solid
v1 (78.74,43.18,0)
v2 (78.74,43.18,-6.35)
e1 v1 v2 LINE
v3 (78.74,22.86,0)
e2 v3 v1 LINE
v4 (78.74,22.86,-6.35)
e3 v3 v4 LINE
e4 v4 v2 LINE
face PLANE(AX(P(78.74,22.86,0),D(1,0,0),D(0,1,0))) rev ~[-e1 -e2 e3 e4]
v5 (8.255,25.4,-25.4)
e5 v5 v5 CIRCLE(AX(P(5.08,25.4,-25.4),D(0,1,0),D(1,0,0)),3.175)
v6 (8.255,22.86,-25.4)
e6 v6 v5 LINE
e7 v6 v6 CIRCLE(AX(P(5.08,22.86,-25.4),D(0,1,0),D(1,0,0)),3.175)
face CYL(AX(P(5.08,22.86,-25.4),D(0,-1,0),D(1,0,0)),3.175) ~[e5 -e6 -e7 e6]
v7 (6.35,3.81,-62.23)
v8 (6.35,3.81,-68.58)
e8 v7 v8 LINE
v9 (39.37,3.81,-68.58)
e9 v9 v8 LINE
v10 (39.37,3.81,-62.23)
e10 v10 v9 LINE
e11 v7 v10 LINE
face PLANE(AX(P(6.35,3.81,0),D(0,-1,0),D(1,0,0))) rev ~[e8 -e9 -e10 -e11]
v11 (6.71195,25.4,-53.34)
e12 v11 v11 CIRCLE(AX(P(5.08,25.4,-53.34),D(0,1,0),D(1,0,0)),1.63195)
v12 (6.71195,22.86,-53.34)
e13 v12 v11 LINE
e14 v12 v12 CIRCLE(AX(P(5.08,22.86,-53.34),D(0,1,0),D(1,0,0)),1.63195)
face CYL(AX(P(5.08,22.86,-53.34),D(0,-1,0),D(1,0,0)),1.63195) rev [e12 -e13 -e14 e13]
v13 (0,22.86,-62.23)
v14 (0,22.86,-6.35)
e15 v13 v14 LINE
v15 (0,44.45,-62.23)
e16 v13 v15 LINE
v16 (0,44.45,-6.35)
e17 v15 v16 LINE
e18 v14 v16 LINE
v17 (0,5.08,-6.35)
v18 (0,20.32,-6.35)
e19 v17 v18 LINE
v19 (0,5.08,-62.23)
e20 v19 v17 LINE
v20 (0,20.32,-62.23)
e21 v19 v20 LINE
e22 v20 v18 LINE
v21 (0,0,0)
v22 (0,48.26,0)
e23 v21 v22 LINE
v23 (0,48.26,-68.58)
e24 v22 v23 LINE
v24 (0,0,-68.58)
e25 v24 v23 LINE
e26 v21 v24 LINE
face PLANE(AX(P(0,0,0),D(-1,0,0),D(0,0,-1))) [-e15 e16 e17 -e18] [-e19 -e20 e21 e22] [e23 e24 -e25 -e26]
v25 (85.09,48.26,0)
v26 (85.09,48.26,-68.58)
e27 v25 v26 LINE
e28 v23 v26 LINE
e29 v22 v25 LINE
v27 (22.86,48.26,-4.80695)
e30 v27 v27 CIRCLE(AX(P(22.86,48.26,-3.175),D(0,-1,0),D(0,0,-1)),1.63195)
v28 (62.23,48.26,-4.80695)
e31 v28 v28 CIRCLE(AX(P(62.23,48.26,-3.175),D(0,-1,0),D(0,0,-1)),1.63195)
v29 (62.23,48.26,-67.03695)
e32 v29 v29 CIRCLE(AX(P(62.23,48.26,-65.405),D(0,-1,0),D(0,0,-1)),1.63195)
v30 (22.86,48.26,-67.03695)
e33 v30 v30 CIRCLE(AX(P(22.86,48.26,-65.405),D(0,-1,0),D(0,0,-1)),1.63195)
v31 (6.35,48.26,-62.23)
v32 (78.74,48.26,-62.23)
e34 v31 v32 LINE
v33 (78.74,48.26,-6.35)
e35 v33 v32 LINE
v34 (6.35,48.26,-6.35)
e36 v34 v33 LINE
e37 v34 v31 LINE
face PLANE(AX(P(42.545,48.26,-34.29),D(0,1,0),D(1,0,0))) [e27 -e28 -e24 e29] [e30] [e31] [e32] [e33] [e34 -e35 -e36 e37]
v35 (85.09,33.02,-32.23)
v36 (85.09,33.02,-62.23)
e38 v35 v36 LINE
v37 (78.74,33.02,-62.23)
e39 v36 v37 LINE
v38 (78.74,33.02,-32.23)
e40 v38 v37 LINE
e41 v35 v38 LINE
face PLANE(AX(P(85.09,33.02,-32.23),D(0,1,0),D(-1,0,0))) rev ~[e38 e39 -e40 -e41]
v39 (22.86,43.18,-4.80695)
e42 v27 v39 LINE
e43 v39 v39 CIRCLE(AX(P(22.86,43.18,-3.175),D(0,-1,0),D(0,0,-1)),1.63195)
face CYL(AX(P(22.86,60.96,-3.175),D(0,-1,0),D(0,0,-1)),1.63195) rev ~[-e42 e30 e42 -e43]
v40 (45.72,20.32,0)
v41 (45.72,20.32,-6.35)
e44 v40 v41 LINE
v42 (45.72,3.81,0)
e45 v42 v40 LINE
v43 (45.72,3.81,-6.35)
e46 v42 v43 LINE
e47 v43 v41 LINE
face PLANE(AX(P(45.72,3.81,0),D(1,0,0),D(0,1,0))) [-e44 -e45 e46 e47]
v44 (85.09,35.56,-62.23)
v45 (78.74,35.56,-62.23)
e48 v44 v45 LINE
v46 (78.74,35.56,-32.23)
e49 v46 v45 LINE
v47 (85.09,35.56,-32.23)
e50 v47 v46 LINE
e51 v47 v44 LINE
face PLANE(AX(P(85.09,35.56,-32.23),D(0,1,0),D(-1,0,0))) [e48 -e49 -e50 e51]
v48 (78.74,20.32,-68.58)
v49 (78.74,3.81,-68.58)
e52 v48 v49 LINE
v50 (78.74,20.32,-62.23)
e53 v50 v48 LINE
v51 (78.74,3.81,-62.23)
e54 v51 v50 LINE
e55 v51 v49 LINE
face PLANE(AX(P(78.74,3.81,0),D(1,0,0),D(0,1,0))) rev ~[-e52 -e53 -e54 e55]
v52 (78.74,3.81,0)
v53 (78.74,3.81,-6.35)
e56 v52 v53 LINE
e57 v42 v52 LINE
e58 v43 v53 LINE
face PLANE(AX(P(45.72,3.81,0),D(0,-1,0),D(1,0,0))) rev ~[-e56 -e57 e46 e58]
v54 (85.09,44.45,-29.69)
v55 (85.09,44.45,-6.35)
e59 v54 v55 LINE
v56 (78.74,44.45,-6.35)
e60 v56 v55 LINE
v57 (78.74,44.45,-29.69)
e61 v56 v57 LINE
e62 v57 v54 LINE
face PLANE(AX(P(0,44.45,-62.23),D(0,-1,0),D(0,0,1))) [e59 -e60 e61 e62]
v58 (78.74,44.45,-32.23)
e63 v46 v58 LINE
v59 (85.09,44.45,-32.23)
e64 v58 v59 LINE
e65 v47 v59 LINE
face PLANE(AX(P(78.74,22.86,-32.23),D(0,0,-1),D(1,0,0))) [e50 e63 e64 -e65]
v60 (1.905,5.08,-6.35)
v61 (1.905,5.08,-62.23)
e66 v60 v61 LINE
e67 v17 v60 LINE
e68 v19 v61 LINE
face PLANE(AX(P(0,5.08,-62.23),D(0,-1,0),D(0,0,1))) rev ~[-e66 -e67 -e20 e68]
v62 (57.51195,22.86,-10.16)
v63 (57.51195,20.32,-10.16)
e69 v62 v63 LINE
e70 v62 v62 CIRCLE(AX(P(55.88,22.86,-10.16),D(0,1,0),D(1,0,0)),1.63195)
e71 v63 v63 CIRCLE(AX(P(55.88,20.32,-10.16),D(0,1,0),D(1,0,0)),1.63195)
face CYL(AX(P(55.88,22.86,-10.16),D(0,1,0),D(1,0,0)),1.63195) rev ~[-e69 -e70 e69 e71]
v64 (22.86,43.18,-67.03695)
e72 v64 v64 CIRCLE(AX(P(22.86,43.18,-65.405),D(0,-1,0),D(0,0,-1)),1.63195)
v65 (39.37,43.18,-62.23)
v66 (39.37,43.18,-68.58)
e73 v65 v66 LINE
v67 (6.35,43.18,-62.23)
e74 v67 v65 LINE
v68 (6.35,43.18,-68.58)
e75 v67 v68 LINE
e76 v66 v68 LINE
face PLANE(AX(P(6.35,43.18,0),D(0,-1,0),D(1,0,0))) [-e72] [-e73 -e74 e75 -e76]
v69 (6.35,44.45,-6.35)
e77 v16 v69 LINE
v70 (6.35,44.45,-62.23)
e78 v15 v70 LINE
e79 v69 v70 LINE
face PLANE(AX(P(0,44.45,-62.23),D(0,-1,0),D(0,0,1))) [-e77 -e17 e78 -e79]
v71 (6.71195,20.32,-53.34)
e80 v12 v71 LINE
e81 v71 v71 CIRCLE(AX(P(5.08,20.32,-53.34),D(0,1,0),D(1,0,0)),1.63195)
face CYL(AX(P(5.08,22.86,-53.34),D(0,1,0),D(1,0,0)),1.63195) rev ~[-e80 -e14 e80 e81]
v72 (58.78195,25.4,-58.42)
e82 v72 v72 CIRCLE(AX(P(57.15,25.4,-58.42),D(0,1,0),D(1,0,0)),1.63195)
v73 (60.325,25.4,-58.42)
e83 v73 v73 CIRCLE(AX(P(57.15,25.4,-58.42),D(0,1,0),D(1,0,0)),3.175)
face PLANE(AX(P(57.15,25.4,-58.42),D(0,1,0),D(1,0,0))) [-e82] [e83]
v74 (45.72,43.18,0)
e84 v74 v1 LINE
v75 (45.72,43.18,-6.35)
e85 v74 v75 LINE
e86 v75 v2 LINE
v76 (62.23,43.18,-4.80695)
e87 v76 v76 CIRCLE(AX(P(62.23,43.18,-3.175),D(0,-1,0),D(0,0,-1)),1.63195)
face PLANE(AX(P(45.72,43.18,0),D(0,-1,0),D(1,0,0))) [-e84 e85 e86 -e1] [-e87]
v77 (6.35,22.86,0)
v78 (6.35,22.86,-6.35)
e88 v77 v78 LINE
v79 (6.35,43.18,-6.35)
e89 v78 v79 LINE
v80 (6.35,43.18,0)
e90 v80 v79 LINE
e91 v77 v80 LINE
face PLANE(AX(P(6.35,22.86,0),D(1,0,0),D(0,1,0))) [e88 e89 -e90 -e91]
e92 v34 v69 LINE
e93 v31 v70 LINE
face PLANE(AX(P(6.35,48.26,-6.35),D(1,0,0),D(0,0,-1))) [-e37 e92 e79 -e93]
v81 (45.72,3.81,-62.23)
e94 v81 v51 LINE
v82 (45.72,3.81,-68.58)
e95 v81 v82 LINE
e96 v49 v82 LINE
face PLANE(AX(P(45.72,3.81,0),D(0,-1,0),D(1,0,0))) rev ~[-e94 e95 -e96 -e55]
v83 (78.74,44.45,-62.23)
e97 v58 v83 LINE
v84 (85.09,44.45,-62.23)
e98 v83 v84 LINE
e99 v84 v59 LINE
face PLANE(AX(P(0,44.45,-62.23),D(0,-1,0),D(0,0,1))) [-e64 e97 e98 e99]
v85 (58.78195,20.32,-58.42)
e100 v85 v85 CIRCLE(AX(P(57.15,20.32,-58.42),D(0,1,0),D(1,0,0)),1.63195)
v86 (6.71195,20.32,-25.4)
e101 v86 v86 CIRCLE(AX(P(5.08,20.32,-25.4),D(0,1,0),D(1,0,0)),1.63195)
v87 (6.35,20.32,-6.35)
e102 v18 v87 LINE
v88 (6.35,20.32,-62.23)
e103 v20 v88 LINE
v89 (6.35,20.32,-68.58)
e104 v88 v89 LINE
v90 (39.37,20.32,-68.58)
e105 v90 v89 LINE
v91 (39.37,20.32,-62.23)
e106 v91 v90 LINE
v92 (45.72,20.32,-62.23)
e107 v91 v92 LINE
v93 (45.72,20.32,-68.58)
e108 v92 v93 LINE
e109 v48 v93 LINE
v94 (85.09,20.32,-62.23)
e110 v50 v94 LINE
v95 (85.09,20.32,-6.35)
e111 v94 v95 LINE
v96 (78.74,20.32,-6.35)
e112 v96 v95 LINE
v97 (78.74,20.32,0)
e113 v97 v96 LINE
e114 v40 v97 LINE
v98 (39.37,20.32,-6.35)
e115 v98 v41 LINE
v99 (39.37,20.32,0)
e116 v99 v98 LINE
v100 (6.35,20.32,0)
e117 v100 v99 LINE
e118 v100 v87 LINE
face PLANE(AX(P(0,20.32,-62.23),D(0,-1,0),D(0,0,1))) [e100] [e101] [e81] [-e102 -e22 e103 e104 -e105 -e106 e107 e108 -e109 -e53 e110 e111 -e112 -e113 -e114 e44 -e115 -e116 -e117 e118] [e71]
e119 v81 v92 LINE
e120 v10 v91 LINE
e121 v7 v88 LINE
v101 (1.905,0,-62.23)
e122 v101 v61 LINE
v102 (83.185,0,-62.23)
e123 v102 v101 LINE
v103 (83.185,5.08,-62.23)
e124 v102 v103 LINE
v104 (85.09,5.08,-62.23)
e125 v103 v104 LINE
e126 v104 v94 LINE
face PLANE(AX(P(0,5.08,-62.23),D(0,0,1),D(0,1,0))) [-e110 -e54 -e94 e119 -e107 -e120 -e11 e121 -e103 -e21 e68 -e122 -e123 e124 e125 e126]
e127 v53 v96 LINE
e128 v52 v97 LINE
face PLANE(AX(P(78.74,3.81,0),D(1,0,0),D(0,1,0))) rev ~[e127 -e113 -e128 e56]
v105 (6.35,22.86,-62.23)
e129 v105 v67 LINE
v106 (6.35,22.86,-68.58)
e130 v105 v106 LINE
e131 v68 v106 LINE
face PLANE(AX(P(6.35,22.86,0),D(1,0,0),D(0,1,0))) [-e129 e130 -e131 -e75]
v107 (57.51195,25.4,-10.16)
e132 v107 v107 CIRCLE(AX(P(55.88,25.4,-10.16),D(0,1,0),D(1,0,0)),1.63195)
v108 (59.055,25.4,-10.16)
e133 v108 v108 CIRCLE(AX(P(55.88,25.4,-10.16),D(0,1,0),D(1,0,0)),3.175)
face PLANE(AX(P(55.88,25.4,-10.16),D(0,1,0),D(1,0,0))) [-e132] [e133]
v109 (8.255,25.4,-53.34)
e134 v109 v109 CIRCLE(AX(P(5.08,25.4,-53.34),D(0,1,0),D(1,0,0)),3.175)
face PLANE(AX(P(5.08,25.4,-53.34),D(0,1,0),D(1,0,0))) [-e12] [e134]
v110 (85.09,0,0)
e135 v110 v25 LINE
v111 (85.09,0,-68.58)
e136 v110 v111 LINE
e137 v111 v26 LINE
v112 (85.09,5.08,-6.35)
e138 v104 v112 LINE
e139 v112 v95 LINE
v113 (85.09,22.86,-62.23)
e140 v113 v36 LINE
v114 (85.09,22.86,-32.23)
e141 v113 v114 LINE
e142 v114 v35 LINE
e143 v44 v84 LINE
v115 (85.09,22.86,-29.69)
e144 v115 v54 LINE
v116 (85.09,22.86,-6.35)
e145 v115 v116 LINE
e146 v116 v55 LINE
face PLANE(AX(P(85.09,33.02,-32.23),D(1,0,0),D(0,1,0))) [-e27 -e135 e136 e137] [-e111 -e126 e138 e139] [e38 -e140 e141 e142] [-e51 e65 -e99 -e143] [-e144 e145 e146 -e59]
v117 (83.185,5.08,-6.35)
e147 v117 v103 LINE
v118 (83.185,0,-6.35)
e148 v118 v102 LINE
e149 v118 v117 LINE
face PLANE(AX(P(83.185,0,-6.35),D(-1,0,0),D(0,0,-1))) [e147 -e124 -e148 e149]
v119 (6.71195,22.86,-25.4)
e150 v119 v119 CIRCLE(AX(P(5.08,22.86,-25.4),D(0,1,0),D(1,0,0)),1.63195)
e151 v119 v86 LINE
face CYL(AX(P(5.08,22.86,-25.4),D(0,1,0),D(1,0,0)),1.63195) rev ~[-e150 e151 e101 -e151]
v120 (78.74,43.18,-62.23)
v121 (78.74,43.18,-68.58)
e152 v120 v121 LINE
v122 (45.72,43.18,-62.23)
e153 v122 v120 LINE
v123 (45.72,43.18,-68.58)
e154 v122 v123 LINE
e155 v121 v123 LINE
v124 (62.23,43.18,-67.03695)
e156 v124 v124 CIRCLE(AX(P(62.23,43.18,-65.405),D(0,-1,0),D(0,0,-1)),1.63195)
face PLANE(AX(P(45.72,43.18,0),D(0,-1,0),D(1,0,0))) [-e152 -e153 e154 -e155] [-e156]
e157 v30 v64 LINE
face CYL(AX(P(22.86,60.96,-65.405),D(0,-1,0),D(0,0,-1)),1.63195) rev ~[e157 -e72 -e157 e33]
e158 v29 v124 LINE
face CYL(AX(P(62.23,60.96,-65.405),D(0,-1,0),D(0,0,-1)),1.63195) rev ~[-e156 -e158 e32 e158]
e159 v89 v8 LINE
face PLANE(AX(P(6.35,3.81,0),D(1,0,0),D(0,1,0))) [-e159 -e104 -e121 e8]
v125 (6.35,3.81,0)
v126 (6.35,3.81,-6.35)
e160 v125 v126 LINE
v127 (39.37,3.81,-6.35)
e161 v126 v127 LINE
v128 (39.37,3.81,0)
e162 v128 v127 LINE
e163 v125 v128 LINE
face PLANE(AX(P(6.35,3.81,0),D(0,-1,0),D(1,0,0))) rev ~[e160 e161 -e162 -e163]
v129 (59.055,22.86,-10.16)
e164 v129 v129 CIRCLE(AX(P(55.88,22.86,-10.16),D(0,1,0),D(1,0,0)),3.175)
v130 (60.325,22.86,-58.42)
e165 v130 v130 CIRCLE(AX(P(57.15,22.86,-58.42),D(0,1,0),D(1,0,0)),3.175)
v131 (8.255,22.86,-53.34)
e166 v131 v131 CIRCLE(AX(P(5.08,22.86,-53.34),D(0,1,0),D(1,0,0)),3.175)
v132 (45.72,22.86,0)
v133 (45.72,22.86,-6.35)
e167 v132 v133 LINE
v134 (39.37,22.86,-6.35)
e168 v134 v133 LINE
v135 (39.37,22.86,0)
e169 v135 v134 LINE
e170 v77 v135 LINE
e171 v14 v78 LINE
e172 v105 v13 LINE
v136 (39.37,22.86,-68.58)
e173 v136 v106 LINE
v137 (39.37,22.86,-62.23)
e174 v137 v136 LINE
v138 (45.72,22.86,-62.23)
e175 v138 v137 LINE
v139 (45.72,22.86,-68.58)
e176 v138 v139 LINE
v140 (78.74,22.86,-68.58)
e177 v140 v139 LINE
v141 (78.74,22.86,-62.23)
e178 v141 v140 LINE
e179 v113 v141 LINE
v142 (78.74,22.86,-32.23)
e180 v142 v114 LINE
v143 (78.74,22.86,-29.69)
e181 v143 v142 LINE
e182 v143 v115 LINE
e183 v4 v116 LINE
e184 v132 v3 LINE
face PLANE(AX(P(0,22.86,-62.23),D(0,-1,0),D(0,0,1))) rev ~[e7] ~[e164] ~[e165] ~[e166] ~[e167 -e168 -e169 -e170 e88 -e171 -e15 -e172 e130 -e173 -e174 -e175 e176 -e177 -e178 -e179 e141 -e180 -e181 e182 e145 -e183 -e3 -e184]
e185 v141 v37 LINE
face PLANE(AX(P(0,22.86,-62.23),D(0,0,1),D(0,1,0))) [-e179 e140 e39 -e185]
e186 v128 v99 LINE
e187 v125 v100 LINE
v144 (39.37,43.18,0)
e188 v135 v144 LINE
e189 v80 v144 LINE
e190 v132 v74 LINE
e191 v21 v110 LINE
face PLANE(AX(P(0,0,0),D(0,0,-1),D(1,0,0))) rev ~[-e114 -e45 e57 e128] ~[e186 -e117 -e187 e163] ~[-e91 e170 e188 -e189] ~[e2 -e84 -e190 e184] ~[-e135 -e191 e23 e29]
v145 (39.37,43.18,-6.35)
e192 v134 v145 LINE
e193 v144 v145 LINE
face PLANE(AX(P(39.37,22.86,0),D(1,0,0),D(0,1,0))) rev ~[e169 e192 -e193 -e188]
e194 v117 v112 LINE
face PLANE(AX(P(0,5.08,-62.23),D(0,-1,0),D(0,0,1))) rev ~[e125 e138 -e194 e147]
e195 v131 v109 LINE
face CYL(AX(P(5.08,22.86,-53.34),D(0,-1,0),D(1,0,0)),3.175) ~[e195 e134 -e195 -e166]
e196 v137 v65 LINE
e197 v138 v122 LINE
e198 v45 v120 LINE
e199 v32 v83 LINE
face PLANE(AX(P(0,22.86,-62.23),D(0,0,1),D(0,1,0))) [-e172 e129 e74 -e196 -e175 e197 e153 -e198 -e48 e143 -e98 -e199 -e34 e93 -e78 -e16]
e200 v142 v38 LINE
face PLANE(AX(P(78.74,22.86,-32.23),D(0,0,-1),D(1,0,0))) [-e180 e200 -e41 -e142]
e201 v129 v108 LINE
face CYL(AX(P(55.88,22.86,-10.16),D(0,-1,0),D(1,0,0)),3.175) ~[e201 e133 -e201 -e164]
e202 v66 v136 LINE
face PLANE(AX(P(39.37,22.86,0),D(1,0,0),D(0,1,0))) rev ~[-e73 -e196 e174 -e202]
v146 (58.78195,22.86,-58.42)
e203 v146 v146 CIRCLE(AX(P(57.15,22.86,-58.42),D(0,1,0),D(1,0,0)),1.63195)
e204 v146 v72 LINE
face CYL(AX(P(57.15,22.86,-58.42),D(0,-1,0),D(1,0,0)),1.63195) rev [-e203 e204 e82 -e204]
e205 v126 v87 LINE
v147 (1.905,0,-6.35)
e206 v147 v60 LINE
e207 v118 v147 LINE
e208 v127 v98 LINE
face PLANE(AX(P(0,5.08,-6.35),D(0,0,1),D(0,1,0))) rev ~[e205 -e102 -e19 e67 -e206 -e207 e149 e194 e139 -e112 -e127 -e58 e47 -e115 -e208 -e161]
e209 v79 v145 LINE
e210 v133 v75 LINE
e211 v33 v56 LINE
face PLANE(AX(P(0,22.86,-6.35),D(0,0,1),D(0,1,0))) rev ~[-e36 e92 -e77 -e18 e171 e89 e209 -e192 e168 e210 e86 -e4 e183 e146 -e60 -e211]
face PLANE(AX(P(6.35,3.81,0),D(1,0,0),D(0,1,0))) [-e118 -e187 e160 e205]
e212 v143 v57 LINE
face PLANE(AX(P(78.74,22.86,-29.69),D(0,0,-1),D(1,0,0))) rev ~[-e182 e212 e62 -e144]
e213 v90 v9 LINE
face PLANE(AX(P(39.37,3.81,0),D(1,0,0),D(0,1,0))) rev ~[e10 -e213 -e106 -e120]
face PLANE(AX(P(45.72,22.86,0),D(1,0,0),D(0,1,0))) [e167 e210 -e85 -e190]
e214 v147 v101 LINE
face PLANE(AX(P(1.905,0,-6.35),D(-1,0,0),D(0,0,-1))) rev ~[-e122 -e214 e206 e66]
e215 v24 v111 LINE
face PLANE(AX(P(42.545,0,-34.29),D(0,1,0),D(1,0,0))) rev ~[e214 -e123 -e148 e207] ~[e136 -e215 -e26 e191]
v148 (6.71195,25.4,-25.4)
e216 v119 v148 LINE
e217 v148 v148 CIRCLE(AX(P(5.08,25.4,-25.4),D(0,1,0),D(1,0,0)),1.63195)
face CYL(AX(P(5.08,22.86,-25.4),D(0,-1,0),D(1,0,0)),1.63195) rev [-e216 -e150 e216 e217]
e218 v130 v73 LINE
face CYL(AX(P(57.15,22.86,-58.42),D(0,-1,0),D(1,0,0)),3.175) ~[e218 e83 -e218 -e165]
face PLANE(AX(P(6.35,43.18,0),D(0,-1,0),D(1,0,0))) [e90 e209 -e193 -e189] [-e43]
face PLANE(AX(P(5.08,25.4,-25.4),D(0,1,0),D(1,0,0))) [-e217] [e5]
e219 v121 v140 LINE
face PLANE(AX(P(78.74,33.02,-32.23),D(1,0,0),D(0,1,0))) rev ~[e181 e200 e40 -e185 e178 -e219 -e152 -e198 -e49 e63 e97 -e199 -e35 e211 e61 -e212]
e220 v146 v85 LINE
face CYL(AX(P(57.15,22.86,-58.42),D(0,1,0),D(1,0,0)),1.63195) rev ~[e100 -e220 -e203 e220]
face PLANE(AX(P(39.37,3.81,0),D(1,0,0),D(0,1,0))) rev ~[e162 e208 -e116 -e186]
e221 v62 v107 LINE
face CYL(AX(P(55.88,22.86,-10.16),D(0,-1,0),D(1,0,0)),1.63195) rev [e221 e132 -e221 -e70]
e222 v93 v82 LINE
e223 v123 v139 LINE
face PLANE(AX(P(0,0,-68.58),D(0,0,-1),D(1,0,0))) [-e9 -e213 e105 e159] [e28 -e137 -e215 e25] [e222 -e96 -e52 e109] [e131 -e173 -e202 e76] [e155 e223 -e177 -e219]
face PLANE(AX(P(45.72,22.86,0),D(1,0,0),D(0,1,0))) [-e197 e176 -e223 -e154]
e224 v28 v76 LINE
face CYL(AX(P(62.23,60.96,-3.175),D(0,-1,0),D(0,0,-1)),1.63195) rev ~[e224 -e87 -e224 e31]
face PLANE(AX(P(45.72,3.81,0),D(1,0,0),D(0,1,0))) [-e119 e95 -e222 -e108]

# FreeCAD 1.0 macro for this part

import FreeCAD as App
import Part
import Sketcher
Q = App.Units.Quantity

doc = App.newDocument("Part")
body = doc.addObject("PartDesign::Body", "Body")

# Sketch on XZ plane
sketch1 = body.newObject("Sketcher::SketchObject", "Sketch")
sketch1.AttachmentSupport = (doc.getObject("XZ_Plane"), [""])
sketch1.MapMode = "FlatFace"
sketch1.addGeometry(Part.LineSegment(App.Vector(0, -69, 0), App.Vector(0, 0, 0)), False)
sketch1.addGeometry(Part.LineSegment(App.Vector(0, 0, 0), App.Vector(85, 0, 0)), False)
sketch1.addGeometry(Part.LineSegment(App.Vector(85, 0, 0), App.Vector(85, -69, 0)), False)
sketch1.addGeometry(Part.LineSegment(App.Vector(85, -69, 0), App.Vector(0, -69, 0)), False)
sketch1.addConstraint(Sketcher.Constraint("Coincident", 0, 2, 1, 1))
sketch1.addConstraint(Sketcher.Constraint("Coincident", 1, 2, 2, 1))
sketch1.addConstraint(Sketcher.Constraint("Coincident", 2, 2, 3, 1))
sketch1.addConstraint(Sketcher.Constraint("Coincident", 3, 2, 0, 1))
sketch1.addConstraint(Sketcher.Constraint("Vertical", 0))
sketch1.addConstraint(Sketcher.Constraint("Horizontal", 1))
sketch1.addConstraint(Sketcher.Constraint("Vertical", 2))
sketch1.addConstraint(Sketcher.Constraint("Horizontal", 3))
sketch1.addConstraint(Sketcher.Constraint("Coincident", 0, 2, -1, 1))
sketch1.addConstraint(Sketcher.Constraint("DistanceY", 0, 1, 0, 2, Q("2.7 in")))
sketch1.addConstraint(Sketcher.Constraint("DistanceX", 1, 1, 1, 2, Q("3.35 in")))
pad1 = body.newObject("PartDesign::Pad", "Pad")
pad1.Profile = sketch1
pad1.Length = Q("1.9 in")
pad1.Reversed = True

# Sketch on XZ plane
sketch2 = body.newObject("Sketcher::SketchObject", "Sketch001")
sketch2.AttachmentSupport = (doc.getObject("XZ_Plane"), [""])
sketch2.MapMode = "FlatFace"
sketch2.AttachmentOffset = App.Placement(App.Vector(0, 0, -1.9 * 25.4), App.Rotation())
sketch2.addGeometry(Part.LineSegment(App.Vector(6, -62, 0), App.Vector(6, -6, 0)), False)
sketch2.addGeometry(Part.LineSegment(App.Vector(6, -6, 0), App.Vector(79, -6, 0)), False)
sketch2.addGeometry(Part.LineSegment(App.Vector(79, -6, 0), App.Vector(79, -62, 0)), False)
sketch2.addGeometry(Part.LineSegment(App.Vector(79, -62, 0), App.Vector(6, -62, 0)), False)
sketch2.addConstraint(Sketcher.Constraint("Coincident", 0, 2, 1, 1))
sketch2.addConstraint(Sketcher.Constraint("Coincident", 1, 2, 2, 1))
sketch2.addConstraint(Sketcher.Constraint("Coincident", 2, 2, 3, 1))
sketch2.addConstraint(Sketcher.Constraint("Coincident", 3, 2, 0, 1))
sketch2.addConstraint(Sketcher.Constraint("Vertical", 0))
sketch2.addConstraint(Sketcher.Constraint("Horizontal", 1))
sketch2.addConstraint(Sketcher.Constraint("Vertical", 2))
sketch2.addConstraint(Sketcher.Constraint("Horizontal", 3))
sketch2.addConstraint(Sketcher.Constraint("DistanceY", 0, 1, 0, 2, Q("2.2 in")))
sketch2.addConstraint(Sketcher.Constraint("DistanceX", 1, 1, 1, 2, Q("2.85 in")))
sketch2.addConstraint(Sketcher.Constraint("DistanceX", -1, 1, 1, 2, Q("3.1 in")))
sketch2.addConstraint(Sketcher.Constraint("DistanceY", 0, 2, -1, 1, Q("0.25 in")))
pocket1 = body.newObject("PartDesign::Pocket", "Pocket")
pocket1.Profile = sketch2
pocket1.Length = Q("1 in")
pocket1.Reversed = True

# Sketch on YZ plane
sketch3 = body.newObject("Sketcher::SketchObject", "Sketch002")
sketch3.AttachmentSupport = (doc.getObject("YZ_Plane"), [""])
sketch3.MapMode = "FlatFace"
sketch3.addGeometry(Part.LineSegment(App.Vector(44, -62, 0), App.Vector(23, -62, 0)), False)
sketch3.addGeometry(Part.LineSegment(App.Vector(23, -62, 0), App.Vector(23, -6, 0)), False)
sketch3.addGeometry(Part.LineSegment(App.Vector(23, -6, 0), App.Vector(44, -6, 0)), False)
sketch3.addGeometry(Part.LineSegment(App.Vector(44, -6, 0), App.Vector(44, -62, 0)), False)
sketch3.addGeometry(Part.LineSegment(App.Vector(20, -62, 0), App.Vector(5, -62, 0)), False)
sketch3.addGeometry(Part.LineSegment(App.Vector(5, -62, 0), App.Vector(5, -6, 0)), False)
sketch3.addGeometry(Part.LineSegment(App.Vector(5, -6, 0), App.Vector(20, -6, 0)), False)
sketch3.addGeometry(Part.LineSegment(App.Vector(20, -6, 0), App.Vector(20, -62, 0)), False)
sketch3.addConstraint(Sketcher.Constraint("Coincident", 0, 2, 1, 1))
sketch3.addConstraint(Sketcher.Constraint("Coincident", 1, 2, 2, 1))
sketch3.addConstraint(Sketcher.Constraint("Coincident", 2, 2, 3, 1))
sketch3.addConstraint(Sketcher.Constraint("Coincident", 3, 2, 0, 1))
sketch3.addConstraint(Sketcher.Constraint("Coincident", 4, 2, 5, 1))
sketch3.addConstraint(Sketcher.Constraint("Coincident", 5, 2, 6, 1))
sketch3.addConstraint(Sketcher.Constraint("Coincident", 6, 2, 7, 1))
sketch3.addConstraint(Sketcher.Constraint("Coincident", 7, 2, 4, 1))
sketch3.addConstraint(Sketcher.Constraint("Horizontal", 0))
sketch3.addConstraint(Sketcher.Constraint("Vertical", 1))
sketch3.addConstraint(Sketcher.Constraint("Horizontal", 2))
sketch3.addConstraint(Sketcher.Constraint("Vertical", 3))
sketch3.addConstraint(Sketcher.Constraint("Horizontal", 4))
sketch3.addConstraint(Sketcher.Constraint("Vertical", 5))
sketch3.addConstraint(Sketcher.Constraint("Horizontal", 6))
sketch3.addConstraint(Sketcher.Constraint("Vertical", 7))
sketch3.addConstraint(Sketcher.Constraint("Horizontal", 3, 2, 4, 2))
sketch3.addConstraint(Sketcher.Constraint("Horizontal", 2, 2, 5, 2))
sketch3.addConstraint(Sketcher.Constraint("DistanceX", 4, 2, 4, 1, Q("0.6 in")))
sketch3.addConstraint(Sketcher.Constraint("DistanceY", 1, 1, 1, 2, Q("2.2 in")))
sketch3.addConstraint(Sketcher.Constraint("DistanceX", 0, 2, 0, 1, Q("0.85 in")))
sketch3.addConstraint(Sketcher.Constraint("DistanceX", -1, 1, 0, 2, Q("0.9 in")))
sketch3.addConstraint(Sketcher.Constraint("DistanceX", -1, 1, 4, 2, Q("0.2 in")))
sketch3.addConstraint(Sketcher.Constraint("DistanceY", 0, 2, -1, 1, Q("2.45 in")))
pocket2 = body.newObject("PartDesign::Pocket", "Pocket001")
pocket2.Profile = sketch3
pocket2.Type = "ThroughAll"
pocket2.Reversed = True

# Sketch on XZ plane
sketch4 = body.newObject("Sketcher::SketchObject", "Sketch003")
sketch4.AttachmentSupport = (doc.getObject("XZ_Plane"), [""])
sketch4.MapMode = "FlatFace"
sketch4.addGeometry(Part.LineSegment(App.Vector(83, -62, 0), App.Vector(83, -6, 0)), False)
sketch4.addGeometry(Part.LineSegment(App.Vector(83, -6, 0), App.Vector(2, -6, 0)), False)
sketch4.addGeometry(Part.LineSegment(App.Vector(2, -6, 0), App.Vector(2, -62, 0)), False)
sketch4.addGeometry(Part.LineSegment(App.Vector(2, -62, 0), App.Vector(83, -62, 0)), False)
sketch4.addConstraint(Sketcher.Constraint("Coincident", 0, 2, 1, 1))
sketch4.addConstraint(Sketcher.Constraint("Coincident", 1, 2, 2, 1))
sketch4.addConstraint(Sketcher.Constraint("Coincident", 2, 2, 3, 1))
sketch4.addConstraint(Sketcher.Constraint("Coincident", 3, 2, 0, 1))
sketch4.addConstraint(Sketcher.Constraint("Vertical", 0))
sketch4.addConstraint(Sketcher.Constraint("Horizontal", 1))
sketch4.addConstraint(Sketcher.Constraint("Vertical", 2))
sketch4.addConstraint(Sketcher.Constraint("Horizontal", 3))
sketch4.addConstraint(Sketcher.Constraint("DistanceX", 1, 2, 1, 1, Q("3.2 in")))
sketch4.addConstraint(Sketcher.Constraint("DistanceY", 0, 1, 0, 2, Q("2.2 in")))
sketch4.addConstraint(Sketcher.Constraint("DistanceY", 0, 2, -1, 1, Q("0.25 in")))
sketch4.addConstraint(Sketcher.Constraint("DistanceX", -1, 1, 0, 2, Q("3.275 in")))
pocket3 = body.newObject("PartDesign::Pocket", "Pocket002")
pocket3.Profile = sketch4
pocket3.Length = Q("0.8 in")

# Sketch on XZ plane
sketch5 = body.newObject("Sketcher::SketchObject", "Sketch004")
sketch5.AttachmentSupport = (doc.getObject("XZ_Plane"), [""])
sketch5.MapMode = "FlatFace"
sketch5.AttachmentOffset = App.Placement(App.Vector(0, 0, -1.9 * 25.4), App.Rotation())
sketch5.addGeometry(Part.Circle(App.Vector(22.9, -3.2, 0), App.Vector(0, 0, 1), 1.6), False)
sketch5.addGeometry(Part.Circle(App.Vector(22.9, -65.4, 0), App.Vector(0, 0, 1), 1.6), False)
sketch5.addGeometry(Part.Circle(App.Vector(62.2, -65.4, 0), App.Vector(0, 0, 1), 1.6), False)
sketch5.addGeometry(Part.Circle(App.Vector(62.2, -3.2, 0), App.Vector(0, 0, 1), 1.6), False)
sketch5.addConstraint(Sketcher.Constraint("Equal", 0, 1))
sketch5.addConstraint(Sketcher.Constraint("Equal", 1, 2))
sketch5.addConstraint(Sketcher.Constraint("Equal", 2, 3))
sketch5.addConstraint(Sketcher.Constraint("Horizontal", 1, 3, 2, 3))
sketch5.addConstraint(Sketcher.Constraint("Horizontal", 0, 3, 3, 3))
sketch5.addConstraint(Sketcher.Constraint("Vertical", 0, 3, 1, 3))
sketch5.addConstraint(Sketcher.Constraint("Vertical", 2, 3, 3, 3))
sketch5.addConstraint(Sketcher.Constraint("Diameter", 0, Q("0.1285 in")))
sketch5.addConstraint(Sketcher.Constraint("DistanceX", -1, 1, 0, 3, Q("0.9 in")))
sketch5.addConstraint(Sketcher.Constraint("DistanceX", -1, 1, 2, 3, Q("2.45 in")))
sketch5.addConstraint(Sketcher.Constraint("DistanceY", 1, 3, 0, 3, Q("2.45 in")))
sketch5.addConstraint(Sketcher.Constraint("DistanceY", 0, 3, -1, 1, Q("0.125 in")))
doc.recompute()
hole = body.newObject("PartDesign::Hole", "Hole")
hole.Profile = sketch5
hole.ThreadType = "None"
hole.Diameter = Q("0.1285 in")
hole.DepthType = "Dimension"
hole.Depth = Q("0.5 in")
hole.DrillPoint = "Angled"
hole.DrillPointAngle = 118
hole.Reversed = True

# Sketch on XY plane
sketch6 = body.newObject("Sketcher::SketchObject", "Sketch005")
sketch6.AttachmentSupport = (doc.getObject("XY_Plane"), [""])
sketch6.MapMode = "FlatFace"
sketch6.addGeometry(Part.LineSegment(App.Vector(6, 20, 0), App.Vector(6, 4, 0)), False)
sketch6.addGeometry(Part.LineSegment(App.Vector(6, 4, 0), App.Vector(39, 4, 0)), False)
sketch6.addGeometry(Part.LineSegment(App.Vector(39, 4, 0), App.Vector(39, 20, 0)), False)
sketch6.addGeometry(Part.LineSegment(App.Vector(39, 20, 0), App.Vector(6, 20, 0)), False)
sketch6.addGeometry(Part.LineSegment(App.Vector(6, 43, 0), App.Vector(6, 23, 0)), False)
sketch6.addGeometry(Part.LineSegment(App.Vector(6, 23, 0), App.Vector(39, 23, 0)), False)
sketch6.addGeometry(Part.LineSegment(App.Vector(39, 23, 0), App.Vector(39, 43, 0)), False)
sketch6.addGeometry(Part.LineSegment(App.Vector(39, 43, 0), App.Vector(6, 43, 0)), False)
sketch6.addGeometry(Part.LineSegment(App.Vector(46, 43, 0), App.Vector(46, 23, 0)), False)
sketch6.addGeometry(Part.LineSegment(App.Vector(46, 23, 0), App.Vector(79, 23, 0)), False)
sketch6.addGeometry(Part.LineSegment(App.Vector(79, 23, 0), App.Vector(79, 43, 0)), False)
sketch6.addGeometry(Part.LineSegment(App.Vector(79, 43, 0), App.Vector(46, 43, 0)), False)
sketch6.addGeometry(Part.LineSegment(App.Vector(46, 20, 0), App.Vector(46, 4, 0)), False)
sketch6.addGeometry(Part.LineSegment(App.Vector(46, 4, 0), App.Vector(79, 4, 0)), False)
sketch6.addGeometry(Part.LineSegment(App.Vector(79, 4, 0), App.Vector(79, 20, 0)), False)
sketch6.addGeometry(Part.LineSegment(App.Vector(79, 20, 0), App.Vector(46, 20, 0)), False)
sketch6.addConstraint(Sketcher.Constraint("Coincident", 0, 2, 1, 1))
sketch6.addConstraint(Sketcher.Constraint("Coincident", 1, 2, 2, 1))
sketch6.addConstraint(Sketcher.Constraint("Coincident", 2, 2, 3, 1))
sketch6.addConstraint(Sketcher.Constraint("Coincident", 3, 2, 0, 1))
sketch6.addConstraint(Sketcher.Constraint("Coincident", 4, 2, 5, 1))
sketch6.addConstraint(Sketcher.Constraint("Coincident", 5, 2, 6, 1))
sketch6.addConstraint(Sketcher.Constraint("Coincident", 6, 2, 7, 1))
sketch6.addConstraint(Sketcher.Constraint("Coincident", 7, 2, 4, 1))
sketch6.addConstraint(Sketcher.Constraint("Coincident", 8, 2, 9, 1))
sketch6.addConstraint(Sketcher.Constraint("Coincident", 9, 2, 10, 1))
sketch6.addConstraint(Sketcher.Constraint("Coincident", 10, 2, 11, 1))
sketch6.addConstraint(Sketcher.Constraint("Coincident", 11, 2, 8, 1))
sketch6.addConstraint(Sketcher.Constraint("Coincident", 12, 2, 13, 1))
sketch6.addConstraint(Sketcher.Constraint("Coincident", 13, 2, 14, 1))
sketch6.addConstraint(Sketcher.Constraint("Coincident", 14, 2, 15, 1))
sketch6.addConstraint(Sketcher.Constraint("Coincident", 15, 2, 12, 1))
sketch6.addConstraint(Sketcher.Constraint("Vertical", 0))
sketch6.addConstraint(Sketcher.Constraint("Horizontal", 1))
sketch6.addConstraint(Sketcher.Constraint("Vertical", 2))
sketch6.addConstraint(Sketcher.Constraint("Horizontal", 3))
sketch6.addConstraint(Sketcher.Constraint("Vertical", 4))
sketch6.addConstraint(Sketcher.Constraint("Horizontal", 5))
sketch6.addConstraint(Sketcher.Constraint("Vertical", 6))
sketch6.addConstraint(Sketcher.Constraint("Horizontal", 7))
sketch6.addConstraint(Sketcher.Constraint("Vertical", 8))
sketch6.addConstraint(Sketcher.Constraint("Horizontal", 9))
sketch6.addConstraint(Sketcher.Constraint("Vertical", 10))
sketch6.addConstraint(Sketcher.Constraint("Horizontal", 11))
sketch6.addConstraint(Sketcher.Constraint("Vertical", 12))
sketch6.addConstraint(Sketcher.Constraint("Horizontal", 13))
sketch6.addConstraint(Sketcher.Constraint("Vertical", 14))
sketch6.addConstraint(Sketcher.Constraint("Horizontal", 15))
sketch6.addConstraint(Sketcher.Constraint("Horizontal", 5, 2, 8, 2))
sketch6.addConstraint(Sketcher.Constraint("Horizontal", 7, 2, 10, 2))
sketch6.addConstraint(Sketcher.Constraint("Horizontal", 1, 2, 12, 2))
sketch6.addConstraint(Sketcher.Constraint("Horizontal", 3, 2, 14, 2))
sketch6.addConstraint(Sketcher.Constraint("Vertical", 3, 2, 4, 2))
sketch6.addConstraint(Sketcher.Constraint("Vertical", 2, 2, 5, 2))
sketch6.addConstraint(Sketcher.Constraint("Vertical", 11, 2, 12, 2))
sketch6.addConstraint(Sketcher.Constraint("Vertical", 10, 2, 13, 2))
sketch6.addConstraint(Sketcher.Constraint("Equal", 7, 9))
sketch6.addConstraint(Sketcher.Constraint("DistanceX", 1, 1, 1, 2, Q("1.3 in")))
sketch6.addConstraint(Sketcher.Constraint("DistanceY", 4, 2, 4, 1, Q("0.8 in")))
sketch6.addConstraint(Sketcher.Constraint("DistanceY", 0, 2, 0, 1, Q("0.65 in")))
sketch6.addConstraint(Sketcher.Constraint("DistanceY", -1, 1, 2, 2, Q("0.8 in")))
sketch6.addConstraint(Sketcher.Constraint("DistanceY", -1, 1, 4, 2, Q("0.9 in")))
sketch6.addConstraint(Sketcher.Constraint("DistanceX", -1, 1, 8, 2, Q("1.8 in")))
sketch6.addConstraint(Sketcher.Constraint("DistanceX", -1, 1, 0, 2, Q("0.25 in")))
pocket4 = body.newObject("PartDesign::Pocket", "Pocket003")
pocket4.Profile = sketch6
pocket4.Type = "ThroughAll"

# Sketch on XZ plane
sketch7 = body.newObject("Sketcher::SketchObject", "Sketch006")
sketch7.AttachmentSupport = (doc.getObject("XZ_Plane"), [""])
sketch7.MapMode = "FlatFace"
sketch7.AttachmentOffset = App.Placement(App.Vector(0, 0, -0.9 * 25.4), App.Rotation())
sketch7.addGeometry(Part.Circle(App.Vector(57.1, -58.4, 0), App.Vector(0, 0, 1), 3.2), False)
sketch7.addGeometry(Part.Circle(App.Vector(57.1, -58.4, 0), App.Vector(0, 0, 1), 1.6), False)
sketch7.addGeometry(Part.Circle(App.Vector(55.9, -10.2, 0), App.Vector(0, 0, 1), 3.2), False)
sketch7.addGeometry(Part.Circle(App.Vector(55.9, -10.2, 0), App.Vector(0, 0, 1), 1.6), False)
sketch7.addGeometry(Part.Circle(App.Vector(5.1, -25.4, 0), App.Vector(0, 0, 1), 3.2), False)
sketch7.addGeometry(Part.Circle(App.Vector(5.1, -25.4, 0), App.Vector(0, 0, 1), 1.6), False)
sketch7.addGeometry(Part.Circle(App.Vector(5.1, -53.3, 0), App.Vector(0, 0, 1), 3.2), False)
sketch7.addGeometry(Part.Circle(App.Vector(5.1, -53.3, 0), App.Vector(0, 0, 1), 1.6), False)
sketch7.addConstraint(Sketcher.Constraint("Coincident", 1, 3, 0, 3))
sketch7.addConstraint(Sketcher.Constraint("Coincident", 3, 3, 2, 3))
sketch7.addConstraint(Sketcher.Constraint("Coincident", 5, 3, 4, 3))
sketch7.addConstraint(Sketcher.Constraint("Coincident", 7, 3, 6, 3))
sketch7.addConstraint(Sketcher.Constraint("Equal", 0, 2))
sketch7.addConstraint(Sketcher.Constraint("Equal", 1, 3))
sketch7.addConstraint(Sketcher.Constraint("Equal", 2, 4))
sketch7.addConstraint(Sketcher.Constraint("Equal", 3, 5))
sketch7.addConstraint(Sketcher.Constraint("Equal", 4, 6))
sketch7.addConstraint(Sketcher.Constraint("Equal", 5, 7))
sketch7.addConstraint(Sketcher.Constraint("Vertical", 5, 3, 6, 3))
sketch7.addConstraint(Sketcher.Constraint("Diameter", 0, Q("0.25 in")))
sketch7.addConstraint(Sketcher.Constraint("DistanceY", 4, 3, -1, 1, Q("1 in")))
sketch7.addConstraint(Sketcher.Constraint("DistanceX", 4, 3, 2, 3, Q("2 in")))
sketch7.addConstraint(Sketcher.Constraint("Diameter", 1, Q("0.1285 in")))
sketch7.addConstraint(Sketcher.Constraint("DistanceY", 0, 3, -1, 1, Q("2.3 in")))
sketch7.addConstraint(Sketcher.Constraint("DistanceX", -1, 1, 2, 3, Q("2.2 in")))
sketch7.addConstraint(Sketcher.Constraint("DistanceY", 2, 3, -1, 1, Q("0.4 in")))
sketch7.addConstraint(Sketcher.Constraint("DistanceY", 6, 3, -1, 1, Q("2.1 in")))
sketch7.addConstraint(Sketcher.Constraint("DistanceX", -1, 1, 0, 3, Q("2.25 in")))
pad2 = body.newObject("PartDesign::Pad", "Pad001")
pad2.Profile = sketch7
pad2.Length = Q("0.1 in")
pad2.Reversed = True

# Sketch on XZ plane
sketch8 = body.newObject("Sketcher::SketchObject", "Sketch007")
sketch8.AttachmentSupport = (doc.getObject("XZ_Plane"), [""])
sketch8.MapMode = "FlatFace"
sketch8.AttachmentOffset = App.Placement(App.Vector(0, 0, -0.9 * 25.4), App.Rotation())
sketch8.addGeometry(Part.Circle(App.Vector(57.1, -58.4, 0), App.Vector(0, 0, 1), 1.6), False)
sketch8.addConstraint(Sketcher.Constraint("Diameter", 0, Q("0.1285 in")))
sketch8.addConstraint(Sketcher.Constraint("DistanceY", 0, 3, -1, 1, Q("2.3 in")))
sketch8.addConstraint(Sketcher.Constraint("DistanceX", -1, 1, 0, 3, Q("2.25 in")))
pocket5 = body.newObject("PartDesign::Pocket", "Pocket004")
pocket5.Profile = sketch8
pocket5.Type = "UpToFirst"
pocket5.Reversed = True

# Sketch on XZ plane
sketch9 = body.newObject("Sketcher::SketchObject", "Sketch008")
sketch9.AttachmentSupport = (doc.getObject("XZ_Plane"), [""])
sketch9.MapMode = "FlatFace"
sketch9.AttachmentOffset = App.Placement(App.Vector(0, 0, -0.9 * 25.4), App.Rotation())
sketch9.addGeometry(Part.Circle(App.Vector(55.9, -10.2, 0), App.Vector(0, 0, 1), 1.6), False)
sketch9.addConstraint(Sketcher.Constraint("Diameter", 0, Q("0.1285 in")))
sketch9.addConstraint(Sketcher.Constraint("DistanceX", -1, 1, 0, 3, Q("2.2 in")))
sketch9.addConstraint(Sketcher.Constraint("DistanceY", 0, 3, -1, 1, Q("0.4 in")))
pocket6 = body.newObject("PartDesign::Pocket", "Pocket005")
pocket6.Profile = sketch9
pocket6.Type = "UpToFirst"
pocket6.Reversed = True

# Sketch on XZ plane
sketch10 = body.newObject("Sketcher::SketchObject", "Sketch009")
sketch10.AttachmentSupport = (doc.getObject("XZ_Plane"), [""])
sketch10.MapMode = "FlatFace"
sketch10.AttachmentOffset = App.Placement(App.Vector(0, 0, -0.9 * 25.4), App.Rotation())
sketch10.addGeometry(Part.Circle(App.Vector(5.1, -25.4, 0), App.Vector(0, 0, 1), 1.6), False)
sketch10.addConstraint(Sketcher.Constraint("DistanceY", 0, 3, -1, 1, Q("1 in")))
sketch10.addConstraint(Sketcher.Constraint("Diameter", 0, Q("0.1285 in")))
sketch10.addConstraint(Sketcher.Constraint("DistanceX", -1, 1, 0, 3, Q("0.2 in")))
pocket7 = body.newObject("PartDesign::Pocket", "Pocket006")
pocket7.Profile = sketch10
pocket7.Type = "UpToFirst"
pocket7.Reversed = True

# Sketch on XZ plane
sketch11 = body.newObject("Sketcher::SketchObject", "Sketch010")
sketch11.AttachmentSupport = (doc.getObject("XZ_Plane"), [""])
sketch11.MapMode = "FlatFace"
sketch11.AttachmentOffset = App.Placement(App.Vector(0, 0, -0.9 * 25.4), App.Rotation())
sketch11.addGeometry(Part.Circle(App.Vector(5.1, -53.3, 0), App.Vector(0, 0, 1), 1.6), False)
sketch11.addConstraint(Sketcher.Constraint("Diameter", 0, Q("0.1285 in")))
sketch11.addConstraint(Sketcher.Constraint("DistanceX", -1, 1, 0, 3, Q("0.2 in")))
sketch11.addConstraint(Sketcher.Constraint("DistanceY", 0, 3, -1, 1, Q("2.1 in")))
pocket8 = body.newObject("PartDesign::Pocket", "Pocket007")
pocket8.Profile = sketch11
pocket8.Type = "UpToFirst"
pocket8.Reversed = True

# Sketch on XZ plane
sketch12 = body.newObject("Sketcher::SketchObject", "Sketch011")
sketch12.AttachmentSupport = (doc.getObject("XZ_Plane"), [""])
sketch12.MapMode = "FlatFace"
sketch12.AttachmentOffset = App.Placement(App.Vector(0, 0, -0.9 * 25.4), App.Rotation())
sketch12.addGeometry(Part.LineSegment(App.Vector(78.7, -32.2, 0), App.Vector(78.7, -29.7, 0)), False)
sketch12.addGeometry(Part.LineSegment(App.Vector(78.7, -29.7, 0), App.Vector(85.1, -29.7, 0)), False)
sketch12.addGeometry(Part.LineSegment(App.Vector(85.1, -29.7, 0), App.Vector(85.1, -32.2, 0)), False)
sketch12.addGeometry(Part.LineSegment(App.Vector(85.1, -32.2, 0), App.Vector(78.7, -32.2, 0)), False)
sketch12.addConstraint(Sketcher.Constraint("Coincident", 0, 2, 1, 1))
sketch12.addConstraint(Sketcher.Constraint("Coincident", 1, 2, 2, 1))
sketch12.addConstraint(Sketcher.Constraint("Coincident", 2, 2, 3, 1))
sketch12.addConstraint(Sketcher.Constraint("Coincident", 3, 2, 0, 1))
sketch12.addConstraint(Sketcher.Constraint("Vertical", 0))
sketch12.addConstraint(Sketcher.Constraint("Horizontal", 1))
sketch12.addConstraint(Sketcher.Constraint("Vertical", 2))
sketch12.addConstraint(Sketcher.Constraint("Horizontal", 3))
sketch12.addConstraint(Sketcher.Constraint("DistanceY", 0, 1, 0, 2, Q("0.1 in")))
sketch12.addConstraint(Sketcher.Constraint("DistanceX", 1, 1, 1, 2, Q("0.25 in")))
sketch12.addConstraint(Sketcher.Constraint("DistanceX", -1, 1, 0, 2, Q("3.1 in")))
sketch12.addConstraint(Sketcher.Constraint("DistanceY", 0, 2, -1, 1, 29.69))
pad3 = body.newObject("PartDesign::Pad", "Pad002")
pad3.Profile = sketch12
pad3.Length = Q("0.89 in")
pad3.Reversed = True

# Sketch on XY plane
sketch13 = body.newObject("Sketcher::SketchObject", "Sketch012")
sketch13.AttachmentSupport = (doc.getObject("XY_Plane"), [""])
sketch13.MapMode = "FlatFace"
sketch13.AttachmentOffset = App.Placement(App.Vector(0, 0, -32.23), App.Rotation())
sketch13.addGeometry(Part.LineSegment(App.Vector(85.1, 35.6, 0), App.Vector(85.1, 33, 0)), False)
sketch13.addGeometry(Part.LineSegment(App.Vector(85.1, 33, 0), App.Vector(78.7, 33, 0)), False)
sketch13.addGeometry(Part.LineSegment(App.Vector(78.7, 33, 0), App.Vector(78.7, 35.6, 0)), False)
sketch13.addGeometry(Part.LineSegment(App.Vector(78.7, 35.6, 0), App.Vector(85.1, 35.6, 0)), False)
sketch13.addConstraint(Sketcher.Constraint("Coincident", 0, 2, 1, 1))
sketch13.addConstraint(Sketcher.Constraint("Coincident", 1, 2, 2, 1))
sketch13.addConstraint(Sketcher.Constraint("Coincident", 2, 2, 3, 1))
sketch13.addConstraint(Sketcher.Constraint("Coincident", 3, 2, 0, 1))
sketch13.addConstraint(Sketcher.Constraint("Vertical", 0))
sketch13.addConstraint(Sketcher.Constraint("Horizontal", 1))
sketch13.addConstraint(Sketcher.Constraint("Vertical", 2))
sketch13.addConstraint(Sketcher.Constraint("Horizontal", 3))
sketch13.addConstraint(Sketcher.Constraint("DistanceY", 0, 2, 0, 1, Q("0.1 in")))
sketch13.addConstraint(Sketcher.Constraint("DistanceX", 1, 2, 1, 1, Q("0.25 in")))
sketch13.addConstraint(Sketcher.Constraint("DistanceY", -1, 1, 0, 2, Q("1.3 in")))
sketch13.addConstraint(Sketcher.Constraint("DistanceX", -1, 1, 1, 2, Q("3.1 in")))
pad4 = body.newObject("PartDesign::Pad", "Pad003")
pad4.Profile = sketch13
pad4.Length = Q("1.33 in")
pad4.Reversed = True

doc.recompute()
